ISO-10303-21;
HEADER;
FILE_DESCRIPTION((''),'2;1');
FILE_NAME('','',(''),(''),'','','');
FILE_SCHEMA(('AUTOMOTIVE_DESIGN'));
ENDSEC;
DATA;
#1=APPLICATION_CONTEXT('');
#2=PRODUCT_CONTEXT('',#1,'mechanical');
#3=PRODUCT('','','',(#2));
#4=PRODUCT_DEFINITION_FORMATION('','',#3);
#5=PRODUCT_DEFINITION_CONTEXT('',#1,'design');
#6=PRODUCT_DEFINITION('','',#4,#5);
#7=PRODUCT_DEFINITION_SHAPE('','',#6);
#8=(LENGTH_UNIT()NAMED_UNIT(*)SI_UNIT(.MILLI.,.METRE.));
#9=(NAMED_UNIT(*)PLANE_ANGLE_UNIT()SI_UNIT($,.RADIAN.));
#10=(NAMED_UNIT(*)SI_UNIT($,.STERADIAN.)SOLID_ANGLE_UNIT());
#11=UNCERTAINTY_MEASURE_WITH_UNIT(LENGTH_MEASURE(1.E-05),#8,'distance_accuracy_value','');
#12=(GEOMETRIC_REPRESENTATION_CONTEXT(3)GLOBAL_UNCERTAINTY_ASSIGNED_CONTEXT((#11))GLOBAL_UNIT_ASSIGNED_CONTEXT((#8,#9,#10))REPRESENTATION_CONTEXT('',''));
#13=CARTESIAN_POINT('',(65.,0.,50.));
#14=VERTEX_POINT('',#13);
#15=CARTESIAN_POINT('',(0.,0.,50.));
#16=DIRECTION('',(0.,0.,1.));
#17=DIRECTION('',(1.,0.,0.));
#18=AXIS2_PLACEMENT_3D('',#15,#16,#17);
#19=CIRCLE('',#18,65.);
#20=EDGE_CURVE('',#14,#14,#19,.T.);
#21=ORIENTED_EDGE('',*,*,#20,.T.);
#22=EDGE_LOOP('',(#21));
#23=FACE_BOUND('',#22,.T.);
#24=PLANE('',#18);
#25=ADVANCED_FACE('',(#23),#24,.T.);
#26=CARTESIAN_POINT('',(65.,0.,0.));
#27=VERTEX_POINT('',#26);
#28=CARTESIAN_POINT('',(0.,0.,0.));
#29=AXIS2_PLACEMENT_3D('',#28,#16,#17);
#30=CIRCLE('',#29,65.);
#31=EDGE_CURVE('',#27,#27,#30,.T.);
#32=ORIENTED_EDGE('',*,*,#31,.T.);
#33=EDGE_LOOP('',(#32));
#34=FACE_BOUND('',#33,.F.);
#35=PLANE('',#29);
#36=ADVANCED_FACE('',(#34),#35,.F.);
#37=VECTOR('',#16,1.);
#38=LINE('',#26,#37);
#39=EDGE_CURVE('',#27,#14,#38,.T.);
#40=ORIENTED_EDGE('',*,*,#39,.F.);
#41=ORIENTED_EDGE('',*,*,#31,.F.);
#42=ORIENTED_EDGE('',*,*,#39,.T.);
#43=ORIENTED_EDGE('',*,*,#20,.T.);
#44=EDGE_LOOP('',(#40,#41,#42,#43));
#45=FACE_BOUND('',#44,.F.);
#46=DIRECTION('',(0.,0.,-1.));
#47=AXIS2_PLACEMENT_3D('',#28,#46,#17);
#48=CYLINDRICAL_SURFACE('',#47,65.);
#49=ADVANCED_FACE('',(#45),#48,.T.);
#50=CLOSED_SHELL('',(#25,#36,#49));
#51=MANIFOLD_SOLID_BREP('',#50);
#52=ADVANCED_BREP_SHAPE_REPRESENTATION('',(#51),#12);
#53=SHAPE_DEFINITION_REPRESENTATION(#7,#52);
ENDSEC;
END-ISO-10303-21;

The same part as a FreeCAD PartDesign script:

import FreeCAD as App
import Part
import Sketcher
Q = App.Units.Quantity

doc = App.newDocument("Part")
body = doc.addObject("PartDesign::Body", "Body")

sketch1 = body.newObject("Sketcher::SketchObject", "Sketch")
sketch1.AttachmentSupport = (doc.getObject("XY_Plane"), [""])
sketch1.MapMode = "FlatFace"
sketch1.addGeometry(Part.Circle(App.Vector(0, 0, 0), App.Vector(0, 0, 1), 65), False)
sketch1.addConstraint([
    Sketcher.Constraint("Coincident", 0, 3, -1, 1),
    Sketcher.Constraint("Diameter", 0, Q("130 mm")),
])
pad1 = body.newObject("PartDesign::Pad", "Pad")
pad1.Profile = sketch1
pad1.Length = 50

doc.recompute()
